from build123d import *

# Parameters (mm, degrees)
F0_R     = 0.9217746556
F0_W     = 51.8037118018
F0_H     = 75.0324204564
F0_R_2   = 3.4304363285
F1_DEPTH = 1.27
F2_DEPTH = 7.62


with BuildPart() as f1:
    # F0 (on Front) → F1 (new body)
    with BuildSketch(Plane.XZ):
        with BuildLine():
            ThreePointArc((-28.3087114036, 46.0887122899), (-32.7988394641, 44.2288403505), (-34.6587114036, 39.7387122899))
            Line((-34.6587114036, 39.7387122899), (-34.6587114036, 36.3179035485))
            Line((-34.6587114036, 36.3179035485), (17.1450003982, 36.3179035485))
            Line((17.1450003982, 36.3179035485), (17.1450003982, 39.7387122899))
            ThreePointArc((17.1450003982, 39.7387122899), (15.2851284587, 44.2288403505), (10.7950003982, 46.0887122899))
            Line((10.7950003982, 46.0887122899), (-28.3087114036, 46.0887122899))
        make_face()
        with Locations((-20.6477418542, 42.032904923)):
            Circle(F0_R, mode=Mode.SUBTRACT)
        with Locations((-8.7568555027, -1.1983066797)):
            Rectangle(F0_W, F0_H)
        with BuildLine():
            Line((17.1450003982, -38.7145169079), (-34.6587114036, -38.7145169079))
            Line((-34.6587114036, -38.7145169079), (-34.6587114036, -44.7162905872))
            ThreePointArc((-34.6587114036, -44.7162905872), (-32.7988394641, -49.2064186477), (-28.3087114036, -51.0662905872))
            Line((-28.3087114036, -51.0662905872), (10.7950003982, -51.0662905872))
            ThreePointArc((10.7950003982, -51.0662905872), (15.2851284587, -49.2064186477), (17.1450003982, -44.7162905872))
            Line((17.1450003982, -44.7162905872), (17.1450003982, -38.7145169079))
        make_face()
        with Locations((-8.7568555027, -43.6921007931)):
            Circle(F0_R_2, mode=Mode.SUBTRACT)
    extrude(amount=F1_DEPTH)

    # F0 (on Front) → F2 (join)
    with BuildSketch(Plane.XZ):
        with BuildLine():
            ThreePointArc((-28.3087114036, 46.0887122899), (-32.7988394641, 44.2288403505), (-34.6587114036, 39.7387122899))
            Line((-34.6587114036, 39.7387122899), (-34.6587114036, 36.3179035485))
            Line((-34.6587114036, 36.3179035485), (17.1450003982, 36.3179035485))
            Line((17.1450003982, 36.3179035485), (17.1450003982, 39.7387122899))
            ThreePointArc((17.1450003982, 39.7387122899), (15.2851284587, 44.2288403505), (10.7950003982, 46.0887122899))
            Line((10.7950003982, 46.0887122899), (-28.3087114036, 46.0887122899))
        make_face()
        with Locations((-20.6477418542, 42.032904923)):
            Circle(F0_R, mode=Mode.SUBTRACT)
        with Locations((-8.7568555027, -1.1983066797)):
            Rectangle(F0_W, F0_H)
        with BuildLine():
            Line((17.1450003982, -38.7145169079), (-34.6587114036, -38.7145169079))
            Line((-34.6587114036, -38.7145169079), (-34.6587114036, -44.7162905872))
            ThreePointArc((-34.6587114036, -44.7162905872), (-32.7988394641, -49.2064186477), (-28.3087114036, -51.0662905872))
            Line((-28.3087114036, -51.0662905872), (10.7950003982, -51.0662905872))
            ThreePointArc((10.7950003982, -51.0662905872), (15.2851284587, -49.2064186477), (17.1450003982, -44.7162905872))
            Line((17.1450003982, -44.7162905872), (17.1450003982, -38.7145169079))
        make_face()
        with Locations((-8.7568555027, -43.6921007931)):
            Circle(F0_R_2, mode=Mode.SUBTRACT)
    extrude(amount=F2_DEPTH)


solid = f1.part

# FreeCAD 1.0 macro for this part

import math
import FreeCAD as App
import Part
import Sketcher
from FreeCAD import Vector
Q = App.Units.Quantity

doc = App.newDocument("Part")
body = doc.addObject("PartDesign::Body", "Body")

# Sketch on XZ plane
sketch1 = body.newObject("Sketcher::SketchObject", "Sketch")
sketch1.AttachmentSupport = (doc.getObject("XZ_Plane"), [""])
sketch1.MapMode = "FlatFace"
sketch1.addGeometry([
    Part.ArcOfCircle(Part.Circle(Vector(-28.308711, 39.738712, 0), Vector(0, 0, 1), 6.35), math.radians(90), math.radians(180)),  # 0
    Part.LineSegment(Vector(-34.658711, 39.738712, 0), Vector(-34.658711, -44.716291, 0)),  # 1
    Part.ArcOfCircle(Part.Circle(Vector(-28.308711, -44.716291, 0), Vector(0, 0, 1), 6.35), math.radians(180), math.radians(270)),  # 2
    Part.LineSegment(Vector(-28.308711, -51.066291, 0), Vector(10.795, -51.066291, 0)),  # 3
    Part.ArcOfCircle(Part.Circle(Vector(10.795, -44.716291, 0), Vector(0, 0, 1), 6.35), math.radians(-90), math.radians(0)),  # 4
    Part.LineSegment(Vector(17.145, -44.716291, 0), Vector(17.145, 39.738712, 0)),  # 5
    Part.ArcOfCircle(Part.Circle(Vector(10.795, 39.738712, 0), Vector(0, 0, 1), 6.35), math.radians(0), math.radians(90)),  # 6
    Part.LineSegment(Vector(10.795, 46.088712, 0), Vector(-28.308711, 46.088712, 0)),  # 7
    Part.Circle(Vector(-8.756856, -43.692101, 0), Vector(0, 0, 1), 3.430436),  # 8
    Part.Circle(Vector(-20.647742, 42.032905, 0), Vector(0, 0, 1), 0.921775),  # 9
], False)
sketch1.addConstraint([
    Sketcher.Constraint("Tangent", 0, 2, 1, 1),
    Sketcher.Constraint("Tangent", 1, 2, 2, 1),
    Sketcher.Constraint("Tangent", 2, 2, 3, 1),
    Sketcher.Constraint("Tangent", 3, 2, 4, 1),
    Sketcher.Constraint("Tangent", 4, 2, 5, 1),
    Sketcher.Constraint("Tangent", 5, 2, 6, 1),
    Sketcher.Constraint("Tangent", 6, 2, 7, 1),
    Sketcher.Constraint("Tangent", 7, 2, 0, 1),
    Sketcher.Constraint("Vertical", 1),
    Sketcher.Constraint("Horizontal", 3),
    Sketcher.Constraint("Vertical", 5),
    Sketcher.Constraint("Horizontal", 7),
    Sketcher.Constraint("Equal", 0, 2),
    Sketcher.Constraint("Equal", 2, 4),
    Sketcher.Constraint("Equal", 4, 6),
    Sketcher.Constraint("Radius", 0, Q("0.25 in")),
    Sketcher.Constraint("DistanceY", 1, 2, 1, 1, Q("3.3250001 in")),
    Sketcher.Constraint("Diameter", 9, Q("1.843549 mm")),
    Sketcher.Constraint("DistanceX", -1, 1, 4, 3, Q("0.425 in")),
    Sketcher.Constraint("Diameter", 8, Q("6.860873 mm")),
    Sketcher.Constraint("DistanceX", 3, 1, 3, 2, Q("39.103712 mm")),
    Sketcher.Constraint("DistanceY", 8, 3, -1, 1, Q("43.692101 mm")),
    Sketcher.Constraint("DistanceY", 2, 3, -1, 1, Q("44.716291 mm")),
    Sketcher.Constraint("DistanceX", 9, 3, -1, 1, Q("20.647742 mm")),
    Sketcher.Constraint("DistanceX", 8, 3, -1, 1, Q("8.756856 mm")),
    Sketcher.Constraint("DistanceY", -1, 1, 9, 3, Q("42.032905 mm")),
])
pad1 = body.newObject("PartDesign::Pad", "Pad")
pad1.Profile = sketch1
pad1.Length = Q("0.05 in")

# Sketch on XZ plane
sketch2 = body.newObject("Sketcher::SketchObject", "Sketch001")
sketch2.AttachmentSupport = (doc.getObject("XZ_Plane"), [""])
sketch2.MapMode = "FlatFace"
sketch2.addGeometry([
    Part.ArcOfCircle(Part.Circle(Vector(-28.308711, 39.738712, 0), Vector(0, 0, 1), 6.35), math.radians(90), math.radians(180)),  # 0
    Part.LineSegment(Vector(-34.658711, 39.738712, 0), Vector(-34.658711, -44.716291, 0)),  # 1
    Part.ArcOfCircle(Part.Circle(Vector(-28.308711, -44.716291, 0), Vector(0, 0, 1), 6.35), math.radians(180), math.radians(270)),  # 2
    Part.LineSegment(Vector(-28.308711, -51.066291, 0), Vector(10.795, -51.066291, 0)),  # 3
    Part.ArcOfCircle(Part.Circle(Vector(10.795, -44.716291, 0), Vector(0, 0, 1), 6.35), math.radians(-90), math.radians(0)),  # 4
    Part.LineSegment(Vector(17.145, -44.716291, 0), Vector(17.145, 39.738712, 0)),  # 5
    Part.ArcOfCircle(Part.Circle(Vector(10.795, 39.738712, 0), Vector(0, 0, 1), 6.35), math.radians(0), math.radians(90)),  # 6
    Part.LineSegment(Vector(10.795, 46.088712, 0), Vector(-28.308711, 46.088712, 0)),  # 7
    Part.Circle(Vector(-8.756856, -43.692101, 0), Vector(0, 0, 1), 3.430436),  # 8
    Part.Circle(Vector(-20.647742, 42.032905, 0), Vector(0, 0, 1), 0.921775),  # 9
], False)
sketch2.addConstraint([
    Sketcher.Constraint("Tangent", 0, 2, 1, 1),
    Sketcher.Constraint("Tangent", 1, 2, 2, 1),
    Sketcher.Constraint("Tangent", 2, 2, 3, 1),
    Sketcher.Constraint("Tangent", 3, 2, 4, 1),
    Sketcher.Constraint("Tangent", 4, 2, 5, 1),
    Sketcher.Constraint("Tangent", 5, 2, 6, 1),
    Sketcher.Constraint("Tangent", 6, 2, 7, 1),
    Sketcher.Constraint("Tangent", 7, 2, 0, 1),
    Sketcher.Constraint("Vertical", 1),
    Sketcher.Constraint("Horizontal", 3),
    Sketcher.Constraint("Vertical", 5),
    Sketcher.Constraint("Horizontal", 7),
    Sketcher.Constraint("Equal", 0, 2),
    Sketcher.Constraint("Equal", 2, 4),
    Sketcher.Constraint("Equal", 4, 6),
    Sketcher.Constraint("Radius", 0, Q("0.25 in")),
    Sketcher.Constraint("DistanceY", 1, 2, 1, 1, Q("3.3250001 in")),
    Sketcher.Constraint("Diameter", 9, Q("1.843549 mm")),
    Sketcher.Constraint("DistanceX", -1, 1, 4, 3, Q("0.425 in")),
    Sketcher.Constraint("Diameter", 8, Q("6.860873 mm")),
    Sketcher.Constraint("DistanceX", 3, 1, 3, 2, Q("39.103712 mm")),
    Sketcher.Constraint("DistanceY", 8, 3, -1, 1, Q("43.692101 mm")),
    Sketcher.Constraint("DistanceY", 2, 3, -1, 1, Q("44.716291 mm")),
    Sketcher.Constraint("DistanceX", 9, 3, -1, 1, Q("20.647742 mm")),
    Sketcher.Constraint("DistanceX", 8, 3, -1, 1, Q("8.756856 mm")),
    Sketcher.Constraint("DistanceY", -1, 1, 9, 3, Q("42.032905 mm")),
])
pad2 = body.newObject("PartDesign::Pad", "Pad001")
pad2.Profile = sketch2
pad2.Length = Q("0.3 in")

doc.recompute()
